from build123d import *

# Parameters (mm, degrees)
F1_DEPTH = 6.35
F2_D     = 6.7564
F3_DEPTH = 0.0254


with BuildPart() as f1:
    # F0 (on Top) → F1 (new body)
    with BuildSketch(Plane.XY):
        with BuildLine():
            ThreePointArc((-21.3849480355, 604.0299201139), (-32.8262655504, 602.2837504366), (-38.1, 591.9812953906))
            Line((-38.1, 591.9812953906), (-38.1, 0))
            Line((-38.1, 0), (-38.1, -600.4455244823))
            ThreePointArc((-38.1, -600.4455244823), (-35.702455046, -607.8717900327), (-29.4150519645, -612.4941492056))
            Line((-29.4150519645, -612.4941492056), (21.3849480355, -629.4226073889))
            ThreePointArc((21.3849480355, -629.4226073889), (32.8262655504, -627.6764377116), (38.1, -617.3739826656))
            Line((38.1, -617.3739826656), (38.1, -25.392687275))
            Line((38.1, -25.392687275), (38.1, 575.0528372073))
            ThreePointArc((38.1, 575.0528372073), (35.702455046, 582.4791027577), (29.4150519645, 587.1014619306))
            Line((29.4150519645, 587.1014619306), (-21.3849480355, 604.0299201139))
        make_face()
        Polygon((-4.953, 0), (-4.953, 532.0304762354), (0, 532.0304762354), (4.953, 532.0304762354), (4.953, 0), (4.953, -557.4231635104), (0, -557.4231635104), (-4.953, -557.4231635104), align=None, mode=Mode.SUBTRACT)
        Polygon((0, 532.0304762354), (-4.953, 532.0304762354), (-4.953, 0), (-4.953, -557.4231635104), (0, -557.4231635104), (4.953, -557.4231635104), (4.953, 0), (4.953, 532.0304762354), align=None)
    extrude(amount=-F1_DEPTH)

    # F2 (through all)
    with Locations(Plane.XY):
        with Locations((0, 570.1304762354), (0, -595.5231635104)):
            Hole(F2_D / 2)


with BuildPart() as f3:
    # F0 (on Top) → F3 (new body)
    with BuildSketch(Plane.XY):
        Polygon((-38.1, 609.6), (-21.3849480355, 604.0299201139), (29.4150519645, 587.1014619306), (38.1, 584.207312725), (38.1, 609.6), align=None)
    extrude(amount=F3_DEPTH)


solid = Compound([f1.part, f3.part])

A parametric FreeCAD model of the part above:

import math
import FreeCAD as App
import Part
import Sketcher

V = App.Vector
Q = App.Units.Quantity


def add_polygon(sketch, points):
    """Adds a closed chain of lines whose ends are joined by coincident constraints."""
    first, n = sketch.GeometryCount, len(points)
    for a, b in zip(points, points[1:] + points[:1]):
        sketch.addGeometry(Part.LineSegment(App.Vector(*a, 0), App.Vector(*b, 0)), False)
    for i in range(n):
        sketch.addConstraint(Sketcher.Constraint("Coincident", first + i, 2, first + (i + 1) % n, 1))

doc = App.newDocument("Part")
params = doc.addObject("Spreadsheet::Sheet", "Params")
for row, (alias, value) in enumerate([
    ("sketch1_radius", "0.5 in"),
    ("pad1_length", "0.25 in"),
    ("sketch2_diameter", "0.266 in"),
    ("hole_diameter", "0.266 in"),
    ("sketch3_width", "3 in"),
    ("pad2_length", "0.001 in"),
], start=1):
    params.set(f"A{row}", alias)
    params.set(f"B{row}", "=" + value)
    params.setAlias(f"B{row}", alias)

body = doc.addObject("PartDesign::Body", "Body")

# Sketch on XY plane
sketch1 = body.newObject("Sketcher::SketchObject", "Sketch")
sketch1.AttachmentSupport = (doc.getObject("XY_Plane"), [""])
sketch1.MapMode = "FlatFace"
sketch1.addGeometry([
    Part.ArcOfCircle(Part.Circle(V(-25, 592, 0), V(0, 0, 1), 13), math.radians(72), math.radians(180)),  # 0
    Part.LineSegment(V(-38, 592, 0), V(-38, -600, 0)),  # 1
    Part.ArcOfCircle(Part.Circle(V(-25, -600, 0), V(0, 0, 1), 13), math.radians(180), math.radians(252)),  # 2
    Part.LineSegment(V(-29, -612, 0), V(21, -629, 0)),  # 3
    Part.ArcOfCircle(Part.Circle(V(25, -617, 0), V(0, 0, 1), 13), math.radians(-108), math.radians(0)),  # 4
    Part.LineSegment(V(38, -617, 0), V(38, 575, 0)),  # 5
    Part.ArcOfCircle(Part.Circle(V(25, 575, 0), V(0, 0, 1), 13), math.radians(0), math.radians(72)),  # 6
    Part.LineSegment(V(29, 587, 0), V(-21, 604, 0)),  # 7
], False)
sketch1.addConstraint([
    Sketcher.Constraint("Tangent", 0, 2, 1, 1),
    Sketcher.Constraint("Tangent", 1, 2, 2, 1),
    Sketcher.Constraint("Tangent", 2, 2, 3, 1),
    Sketcher.Constraint("Tangent", 3, 2, 4, 1),
    Sketcher.Constraint("Tangent", 4, 2, 5, 1),
    Sketcher.Constraint("Tangent", 5, 2, 6, 1),
    Sketcher.Constraint("Tangent", 6, 2, 7, 1),
    Sketcher.Constraint("Tangent", 7, 2, 0, 1),
    Sketcher.Constraint("Vertical", 1),
    Sketcher.Constraint("Vertical", 5),
    Sketcher.Constraint("Equal", 0, 2),
    Sketcher.Constraint("Equal", 2, 4),
    Sketcher.Constraint("Equal", 4, 6),
    Sketcher.Constraint("Parallel", 3, 7),
    Sketcher.Constraint("Radius", 0, Q("0.5 in")),
    Sketcher.Constraint("DistanceX", 0, 3, -1, 1, Q("1 in")),
    Sketcher.Constraint("DistanceX", -1, 1, 4, 3, Q("1 in")),
    Sketcher.Constraint("Angle", 3, Q("-18.43 deg")),
    Sketcher.Constraint("DistanceY", 1, 2, 1, 1, Q("1192.42682 mm")),
    Sketcher.Constraint("DistanceY", 2, 2, -1, 1, Q("612.494149 mm")),
])
sketch1.setExpression("Constraints[14]", "Params.sketch1_radius")
pad1 = body.newObject("PartDesign::Pad", "Pad")
pad1.Profile = sketch1
pad1.setExpression("Length", "Params.pad1_length")
pad1.Reversed = True

# Sketch on XY plane
sketch2 = body.newObject("Sketcher::SketchObject", "Sketch001")
sketch2.AttachmentSupport = (doc.getObject("XY_Plane"), [""])
sketch2.MapMode = "FlatFace"
sketch2.addGeometry([
    Part.Circle(V(0, 570.1, 0), V(0, 0, 1), 3.4),
    Part.Circle(V(0, -595.5, 0), V(0, 0, 1), 3.4),
], False)
sketch2.addConstraint([
    Sketcher.Constraint("Equal", 0, 1),
    Sketcher.Constraint("PointOnObject", 0, 3, -2),
    Sketcher.Constraint("PointOnObject", 1, 3, -2),
    Sketcher.Constraint("Diameter", 0, Q("0.266 in")),
    Sketcher.Constraint("DistanceY", 1, 3, 0, 3, Q("1165.65364 mm")),
    Sketcher.Constraint("DistanceY", -1, 1, 0, 3, Q("570.130476 mm")),
])
sketch2.setExpression("Constraints[3]", "Params.sketch2_diameter")
doc.recompute()
hole = body.newObject("PartDesign::Hole", "Hole")
hole.Profile = sketch2
hole.ThreadType = "None"
hole.setExpression("Diameter", "Params.hole_diameter")
hole.DepthType = "ThroughAll"
body2 = doc.addObject("PartDesign::Body", "Body001")

# Sketch on XY plane
sketch3 = body2.newObject("Sketcher::SketchObject", "Sketch002")
sketch3.AttachmentSupport = (doc.getObject("XY_Plane001"), [""])
sketch3.MapMode = "FlatFace"
add_polygon(sketch3, [(-38, 610), (-21, 604), (29, 587), (38, 584), (38, 610)])  # lines 0-4
sketch3.addConstraint([
    Sketcher.Constraint("Vertical", 3),
    Sketcher.Constraint("Horizontal", 4),
    Sketcher.Constraint("Parallel", 0, 1),
    Sketcher.Constraint("Parallel", 1, 2),
    Sketcher.Constraint("DistanceX", 4, 2, 4, 1, Q("3 in")),
    Sketcher.Constraint("DistanceY", -1, 1, 3, 2, Q("24 in")),
    Sketcher.Constraint("DistanceX", 0, 2, 1, 2, Q("2 in")),
    Sketcher.Constraint("DistanceX", -1, 1, 2, 2, Q("1.5 in")),
    Sketcher.Constraint("Angle", 0, Q("-18.43 deg")),
    Sketcher.Constraint("DistanceX", 0, 2, -1, 1, Q("21.384948 mm")),
])
sketch3.setExpression("Constraints[9]", "Params.sketch3_width")
pad2 = body2.newObject("PartDesign::Pad", "Pad001")
pad2.Profile = sketch3
pad2.setExpression("Length", "Params.pad2_length")

doc.recompute()
